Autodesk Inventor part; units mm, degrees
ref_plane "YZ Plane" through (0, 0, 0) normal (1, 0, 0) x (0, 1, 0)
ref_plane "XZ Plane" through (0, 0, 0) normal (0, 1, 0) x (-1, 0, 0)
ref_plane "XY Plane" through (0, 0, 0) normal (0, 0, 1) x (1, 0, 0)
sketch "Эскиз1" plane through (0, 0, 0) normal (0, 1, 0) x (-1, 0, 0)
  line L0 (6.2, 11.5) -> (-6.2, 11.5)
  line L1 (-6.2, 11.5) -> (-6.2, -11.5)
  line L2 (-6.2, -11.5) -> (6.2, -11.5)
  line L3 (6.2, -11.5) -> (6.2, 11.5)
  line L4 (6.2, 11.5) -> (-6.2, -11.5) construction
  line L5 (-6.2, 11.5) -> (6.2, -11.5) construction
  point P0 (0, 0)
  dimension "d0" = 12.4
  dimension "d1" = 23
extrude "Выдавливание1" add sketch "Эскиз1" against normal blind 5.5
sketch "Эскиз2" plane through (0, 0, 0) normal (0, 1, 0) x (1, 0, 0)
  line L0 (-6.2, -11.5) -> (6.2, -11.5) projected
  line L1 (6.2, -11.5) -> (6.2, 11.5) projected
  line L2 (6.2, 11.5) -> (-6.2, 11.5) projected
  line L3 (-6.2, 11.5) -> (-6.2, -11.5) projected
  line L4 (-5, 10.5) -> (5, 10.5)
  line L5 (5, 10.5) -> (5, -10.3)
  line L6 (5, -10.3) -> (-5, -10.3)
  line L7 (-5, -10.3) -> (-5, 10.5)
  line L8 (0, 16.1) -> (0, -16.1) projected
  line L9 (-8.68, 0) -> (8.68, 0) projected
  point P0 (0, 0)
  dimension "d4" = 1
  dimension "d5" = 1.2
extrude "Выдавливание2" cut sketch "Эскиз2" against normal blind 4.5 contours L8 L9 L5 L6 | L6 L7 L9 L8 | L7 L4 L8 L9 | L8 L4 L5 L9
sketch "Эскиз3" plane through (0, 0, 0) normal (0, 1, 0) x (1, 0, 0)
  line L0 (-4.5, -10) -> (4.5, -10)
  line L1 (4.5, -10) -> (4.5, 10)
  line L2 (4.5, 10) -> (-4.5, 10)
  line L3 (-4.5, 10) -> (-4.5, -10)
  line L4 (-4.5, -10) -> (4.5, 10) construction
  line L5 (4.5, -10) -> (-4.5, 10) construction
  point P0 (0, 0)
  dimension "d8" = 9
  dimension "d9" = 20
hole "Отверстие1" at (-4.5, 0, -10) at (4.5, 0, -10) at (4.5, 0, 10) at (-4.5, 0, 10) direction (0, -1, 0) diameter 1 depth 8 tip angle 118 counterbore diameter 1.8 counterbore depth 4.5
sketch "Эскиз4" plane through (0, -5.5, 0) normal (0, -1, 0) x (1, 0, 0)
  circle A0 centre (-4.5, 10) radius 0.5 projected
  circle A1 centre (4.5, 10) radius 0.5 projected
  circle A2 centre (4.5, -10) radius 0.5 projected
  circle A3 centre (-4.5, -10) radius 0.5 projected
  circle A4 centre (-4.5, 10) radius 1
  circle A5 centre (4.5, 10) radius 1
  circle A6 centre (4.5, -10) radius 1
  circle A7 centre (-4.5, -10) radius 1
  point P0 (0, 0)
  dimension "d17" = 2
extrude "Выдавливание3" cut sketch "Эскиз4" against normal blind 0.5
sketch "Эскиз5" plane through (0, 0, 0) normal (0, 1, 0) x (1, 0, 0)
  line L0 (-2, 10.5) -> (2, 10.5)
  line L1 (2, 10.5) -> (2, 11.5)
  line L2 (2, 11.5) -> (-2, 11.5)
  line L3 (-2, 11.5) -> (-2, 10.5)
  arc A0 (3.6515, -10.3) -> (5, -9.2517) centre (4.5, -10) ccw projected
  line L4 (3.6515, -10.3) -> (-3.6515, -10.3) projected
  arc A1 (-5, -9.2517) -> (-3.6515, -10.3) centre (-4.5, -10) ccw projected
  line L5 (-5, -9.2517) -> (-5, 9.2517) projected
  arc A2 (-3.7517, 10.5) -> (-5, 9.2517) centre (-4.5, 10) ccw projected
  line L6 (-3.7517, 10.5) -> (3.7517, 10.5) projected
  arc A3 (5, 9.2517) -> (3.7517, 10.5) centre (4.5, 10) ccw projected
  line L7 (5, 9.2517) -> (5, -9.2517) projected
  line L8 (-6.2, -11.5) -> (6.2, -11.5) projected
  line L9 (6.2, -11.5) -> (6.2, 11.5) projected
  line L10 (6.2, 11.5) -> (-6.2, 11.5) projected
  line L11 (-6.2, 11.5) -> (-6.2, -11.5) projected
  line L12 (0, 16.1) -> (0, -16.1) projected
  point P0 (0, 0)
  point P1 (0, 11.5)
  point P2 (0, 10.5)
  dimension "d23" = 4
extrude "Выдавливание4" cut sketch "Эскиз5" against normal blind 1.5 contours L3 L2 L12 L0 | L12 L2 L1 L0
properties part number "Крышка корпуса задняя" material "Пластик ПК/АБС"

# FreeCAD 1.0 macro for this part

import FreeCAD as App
import Part
import Sketcher

doc = App.newDocument("Part")
body = doc.addObject("PartDesign::Body", "Body")

# Sketch on XZ plane
sketch1 = doc.addObject("Sketcher::SketchObject", "Sketch")
body.addObject(sketch1)
sketch1.AttachmentSupport = (doc.XZ_Plane, [""])
sketch1.MapMode = "FlatFace"
sketch1.addGeometry([
    Part.LineSegment(App.Vector(-6, -12, 0), App.Vector(-6, 12, 0)),
    Part.LineSegment(App.Vector(-6, 12, 0), App.Vector(6, 12, 0)),
    Part.LineSegment(App.Vector(6, 12, 0), App.Vector(6, -12, 0)),
    Part.LineSegment(App.Vector(6, -12, 0), App.Vector(-6, -12, 0)),
], False)
sketch1.addConstraint([
    Sketcher.Constraint("Coincident", 0, 2, 1, 1),
    Sketcher.Constraint("Coincident", 1, 2, 2, 1),
    Sketcher.Constraint("Coincident", 2, 2, 3, 1),
    Sketcher.Constraint("Coincident", 3, 2, 0, 1),
    Sketcher.Constraint("Vertical", 0),
    Sketcher.Constraint("Horizontal", 1),
    Sketcher.Constraint("Vertical", 2),
    Sketcher.Constraint("Horizontal", 3),
    Sketcher.Constraint("Symmetric", 0, 2, 2, 2, -1, 1),
    Sketcher.Constraint("DistanceY", 0, 1, 0, 2, 23.0),
    Sketcher.Constraint("DistanceX", 1, 1, 1, 2, 12.4),
])
pad1 = doc.addObject("PartDesign::Pad", "Pad")
body.addObject(pad1)
pad1.Profile = sketch1
pad1.Length = 5.5

# Sketch on XZ plane
sketch2 = doc.addObject("Sketcher::SketchObject", "Sketch001")
body.addObject(sketch2)
sketch2.AttachmentSupport = (doc.XZ_Plane, [""])
sketch2.MapMode = "FlatFace"
sketch2.addGeometry([
    Part.LineSegment(App.Vector(5, 10, 0), App.Vector(5, -10, 0)),
    Part.LineSegment(App.Vector(5, -10, 0), App.Vector(-5, -10, 0)),
    Part.LineSegment(App.Vector(-5, -10, 0), App.Vector(-5, 10, 0)),
    Part.LineSegment(App.Vector(-5, 10, 0), App.Vector(5, 10, 0)),
], False)
sketch2.addConstraint([
    Sketcher.Constraint("Coincident", 0, 2, 1, 1),
    Sketcher.Constraint("Coincident", 1, 2, 2, 1),
    Sketcher.Constraint("Coincident", 2, 2, 3, 1),
    Sketcher.Constraint("Coincident", 3, 2, 0, 1),
    Sketcher.Constraint("Vertical", 0),
    Sketcher.Constraint("Horizontal", 1),
    Sketcher.Constraint("Vertical", 2),
    Sketcher.Constraint("Horizontal", 3),
    Sketcher.Constraint("DistanceX", 1, 2, 1, 1, 10.0),
    Sketcher.Constraint("DistanceY", 0, 2, 0, 1, 20.8),
    Sketcher.Constraint("DistanceX", -1, 1, 0, 2, 5.0),
    Sketcher.Constraint("DistanceY", 0, 2, -1, 1, 10.5),
])
pocket1 = doc.addObject("PartDesign::Pocket", "Pocket")
body.addObject(pocket1)
pocket1.Profile = sketch2
pocket1.Length = 4.5
pocket1.Reversed = True

# Sketch on XZ plane
sketch3 = doc.addObject("Sketcher::SketchObject", "Sketch002")
body.addObject(sketch3)
sketch3.AttachmentSupport = (doc.XZ_Plane, [""])
sketch3.MapMode = "FlatFace"
sketch3.addGeometry([
    Part.Circle(App.Vector(-4.5, -10, 0), App.Vector(0, 0, 1), 0.5),
    Part.Circle(App.Vector(4.5, -10, 0), App.Vector(0, 0, 1), 0.5),
    Part.Circle(App.Vector(4.5, 10, 0), App.Vector(0, 0, 1), 0.5),
    Part.Circle(App.Vector(-4.5, 10, 0), App.Vector(0, 0, 1), 0.5),
], False)
sketch3.addConstraint([
    Sketcher.Constraint("Equal", 0, 1),
    Sketcher.Constraint("Equal", 1, 2),
    Sketcher.Constraint("Equal", 2, 3),
    Sketcher.Constraint("Symmetric", 0, 3, 2, 3, -1, 1),
    Sketcher.Constraint("Symmetric", 1, 3, 3, 3, -1, 1),
    Sketcher.Constraint("Symmetric", 0, 3, 1, 3, -2),
    Sketcher.Constraint("Diameter", 0, 1.0),
    Sketcher.Constraint("DistanceY", 0, 3, -1, 1, 10.0),
    Sketcher.Constraint("DistanceX", 0, 3, 1, 3, 9.0),
])
doc.recompute()
hole = doc.addObject("PartDesign::Hole", "Hole")
body.addObject(hole)
hole.Profile = sketch3
hole.ThreadType = "None"
hole.Diameter = 1
hole.DepthType = "Dimension"
hole.Depth = 8
hole.DrillPoint = "Angled"
hole.DrillPointAngle = 118
hole.HoleCutType = "Counterbore"
hole.HoleCutDiameter = 1.8
hole.HoleCutDepth = 4.5
hole.Reversed = True

# Sketch on XZ plane
sketch4 = doc.addObject("Sketcher::SketchObject", "Sketch003")
body.addObject(sketch4)
sketch4.AttachmentSupport = (doc.XZ_Plane, [""])
sketch4.MapMode = "FlatFace"
sketch4.AttachmentOffset = App.Placement(App.Vector(0, 0, 5.5), App.Rotation())
sketch4.addGeometry([
    Part.Circle(App.Vector(-4.5, 10, 0), App.Vector(0, 0, 1), 1),  # 0
    Part.Circle(App.Vector(-4.5, 10, 0), App.Vector(0, 0, 1), 0.5),  # 1
    Part.Circle(App.Vector(4.5, 10, 0), App.Vector(0, 0, 1), 1),  # 2
    Part.Circle(App.Vector(4.5, 10, 0), App.Vector(0, 0, 1), 0.5),  # 3
    Part.Circle(App.Vector(4.5, -10, 0), App.Vector(0, 0, 1), 1),  # 4
    Part.Circle(App.Vector(4.5, -10, 0), App.Vector(0, 0, 1), 0.5),  # 5
    Part.Circle(App.Vector(-4.5, -10, 0), App.Vector(0, 0, 1), 1),  # 6
    Part.Circle(App.Vector(-4.5, -10, 0), App.Vector(0, 0, 1), 0.5),  # 7
], False)
sketch4.addConstraint([
    Sketcher.Constraint("Coincident", 1, 3, 0, 3),
    Sketcher.Constraint("Coincident", 3, 3, 2, 3),
    Sketcher.Constraint("Coincident", 5, 3, 4, 3),
    Sketcher.Constraint("Coincident", 7, 3, 6, 3),
    Sketcher.Constraint("Equal", 0, 2),
    Sketcher.Constraint("Equal", 1, 3),
    Sketcher.Constraint("Equal", 2, 4),
    Sketcher.Constraint("Equal", 3, 5),
    Sketcher.Constraint("Equal", 4, 6),
    Sketcher.Constraint("Equal", 5, 7),
    Sketcher.Constraint("Symmetric", 0, 3, 4, 3, -1, 1),
    Sketcher.Constraint("Symmetric", 2, 3, 6, 3, -1, 1),
    Sketcher.Constraint("Symmetric", 0, 3, 2, 3, -2),
    Sketcher.Constraint("Diameter", 0, 2.0),
    Sketcher.Constraint("Diameter", 1, 1.0),
    Sketcher.Constraint("DistanceY", -1, 1, 0, 3, 10.0),
    Sketcher.Constraint("DistanceX", 0, 3, 2, 3, 9.0),
])
pocket2 = doc.addObject("PartDesign::Pocket", "Pocket001")
body.addObject(pocket2)
pocket2.Profile = sketch4
pocket2.Length = 0.5

# Sketch on XZ plane
sketch5 = doc.addObject("Sketcher::SketchObject", "Sketch004")
body.addObject(sketch5)
sketch5.AttachmentSupport = (doc.XZ_Plane, [""])
sketch5.MapMode = "FlatFace"
sketch5.addGeometry([
    Part.LineSegment(App.Vector(-2, -11.5, 0), App.Vector(-2, -10.5, 0)),
    Part.LineSegment(App.Vector(-2, -10.5, 0), App.Vector(2, -10.5, 0)),
    Part.LineSegment(App.Vector(2, -10.5, 0), App.Vector(2, -11.5, 0)),
    Part.LineSegment(App.Vector(2, -11.5, 0), App.Vector(-2, -11.5, 0)),
], False)
sketch5.addConstraint([
    Sketcher.Constraint("Coincident", 0, 2, 1, 1),
    Sketcher.Constraint("Coincident", 1, 2, 2, 1),
    Sketcher.Constraint("Coincident", 2, 2, 3, 1),
    Sketcher.Constraint("Coincident", 3, 2, 0, 1),
    Sketcher.Constraint("Vertical", 0),
    Sketcher.Constraint("Horizontal", 1),
    Sketcher.Constraint("Vertical", 2),
    Sketcher.Constraint("Horizontal", 3),
    Sketcher.Constraint("DistanceX", 1, 1, 1, 2, 4.0),
    Sketcher.Constraint("DistanceY", 0, 1, 0, 2, 1.0),
    Sketcher.Constraint("DistanceX", 0, 2, -1, 1, 2.0),
    Sketcher.Constraint("DistanceY", 0, 2, -1, 1, 10.5),
])
pocket3 = doc.addObject("PartDesign::Pocket", "Pocket002")
body.addObject(pocket3)
pocket3.Profile = sketch5
pocket3.Length = 1.5
pocket3.Reversed = True

doc.recompute()
